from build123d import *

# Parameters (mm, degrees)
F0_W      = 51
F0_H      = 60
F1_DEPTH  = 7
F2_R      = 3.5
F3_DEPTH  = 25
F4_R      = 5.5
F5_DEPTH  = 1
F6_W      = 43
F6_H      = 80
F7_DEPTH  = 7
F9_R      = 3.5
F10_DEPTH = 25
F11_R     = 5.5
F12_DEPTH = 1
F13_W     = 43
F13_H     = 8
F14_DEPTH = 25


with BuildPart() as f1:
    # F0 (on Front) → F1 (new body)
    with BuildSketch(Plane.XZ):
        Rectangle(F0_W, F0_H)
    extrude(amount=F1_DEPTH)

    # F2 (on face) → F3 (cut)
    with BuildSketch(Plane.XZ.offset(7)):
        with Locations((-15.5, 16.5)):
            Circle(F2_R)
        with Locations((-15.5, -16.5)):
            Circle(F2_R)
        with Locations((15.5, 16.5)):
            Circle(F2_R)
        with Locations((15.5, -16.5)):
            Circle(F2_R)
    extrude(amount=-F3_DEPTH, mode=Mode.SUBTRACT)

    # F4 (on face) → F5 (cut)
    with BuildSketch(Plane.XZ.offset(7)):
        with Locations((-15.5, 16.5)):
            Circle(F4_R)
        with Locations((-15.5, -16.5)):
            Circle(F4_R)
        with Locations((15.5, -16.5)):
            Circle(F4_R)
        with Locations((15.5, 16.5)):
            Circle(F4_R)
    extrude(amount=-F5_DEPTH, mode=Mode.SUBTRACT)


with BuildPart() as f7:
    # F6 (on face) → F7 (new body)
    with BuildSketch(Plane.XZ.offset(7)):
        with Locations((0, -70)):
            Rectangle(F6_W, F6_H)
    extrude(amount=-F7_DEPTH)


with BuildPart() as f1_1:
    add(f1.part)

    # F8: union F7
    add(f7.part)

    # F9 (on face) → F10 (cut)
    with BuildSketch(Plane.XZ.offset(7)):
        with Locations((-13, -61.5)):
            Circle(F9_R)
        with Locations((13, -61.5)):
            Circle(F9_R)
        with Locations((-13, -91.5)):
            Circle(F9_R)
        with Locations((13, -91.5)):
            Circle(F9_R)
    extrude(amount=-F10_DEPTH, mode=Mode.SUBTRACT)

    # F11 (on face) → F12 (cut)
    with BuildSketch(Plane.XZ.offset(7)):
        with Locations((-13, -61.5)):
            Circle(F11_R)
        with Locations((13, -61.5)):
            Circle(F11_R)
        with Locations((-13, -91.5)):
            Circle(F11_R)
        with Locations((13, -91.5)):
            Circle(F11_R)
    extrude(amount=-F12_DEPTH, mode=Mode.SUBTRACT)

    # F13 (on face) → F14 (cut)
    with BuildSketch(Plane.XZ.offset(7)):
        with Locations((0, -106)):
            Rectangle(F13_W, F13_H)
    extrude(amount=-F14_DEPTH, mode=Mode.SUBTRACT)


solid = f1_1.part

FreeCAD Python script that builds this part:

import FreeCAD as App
import Part
import Sketcher
from FreeCAD import Vector
Q = App.Units.Quantity


def add_polygon(sketch, points):
    """Adds a closed chain of lines whose ends are joined by coincident constraints."""
    first, n = sketch.GeometryCount, len(points)
    for a, b in zip(points, points[1:] + points[:1]):
        sketch.addGeometry(Part.LineSegment(App.Vector(*a, 0), App.Vector(*b, 0)), False)
    for i in range(n):
        sketch.addConstraint(Sketcher.Constraint("Coincident", first + i, 2, first + (i + 1) % n, 1))

doc = App.newDocument("Part")
body = doc.addObject("PartDesign::Body", "Body")

# Sketch on XZ plane
sketch1 = body.newObject("Sketcher::SketchObject", "Sketch")
sketch1.AttachmentSupport = (doc.getObject("XZ_Plane"), [""])
sketch1.MapMode = "FlatFace"
add_polygon(sketch1, [(-26, 30), (-26, -30), (26, -30), (26, 30)])  # lines 0-3
sketch1.addConstraint([
    Sketcher.Constraint("Vertical", 0),
    Sketcher.Constraint("Horizontal", 1),
    Sketcher.Constraint("Vertical", 2),
    Sketcher.Constraint("Horizontal", 3),
    Sketcher.Constraint("Symmetric", 0, 2, 2, 2, -1, 1),
    Sketcher.Constraint("DistanceX", 1, 1, 1, 2, Q("51 mm")),
    Sketcher.Constraint("DistanceY", 0, 2, 0, 1, Q("60 mm")),
])
pad1 = body.newObject("PartDesign::Pad", "Pad")
pad1.Profile = sketch1
pad1.Length = 7

# Sketch on XZ plane
sketch2 = body.newObject("Sketcher::SketchObject", "Sketch001")
sketch2.AttachmentSupport = (doc.getObject("XZ_Plane"), [""])
sketch2.MapMode = "FlatFace"
sketch2.AttachmentOffset = App.Placement(Vector(0, 0, 7), App.Rotation())
sketch2.addGeometry([
    Part.Circle(Vector(-15.5, 16.5, 0), Vector(0, 0, 1), 3.5),
    Part.Circle(Vector(-15.5, -16.5, 0), Vector(0, 0, 1), 3.5),
    Part.Circle(Vector(15.5, 16.5, 0), Vector(0, 0, 1), 3.5),
    Part.Circle(Vector(15.5, -16.5, 0), Vector(0, 0, 1), 3.5),
], False)
sketch2.addConstraint([
    Sketcher.Constraint("Equal", 0, 1),
    Sketcher.Constraint("Equal", 1, 2),
    Sketcher.Constraint("Equal", 2, 3),
    Sketcher.Constraint("Symmetric", 1, 3, 2, 3, -1, 1),
    Sketcher.Constraint("Symmetric", 0, 3, 3, 3, -1, 1),
    Sketcher.Constraint("Symmetric", 0, 3, 2, 3, -2),
    Sketcher.Constraint("Diameter", 0, Q("7 mm")),
    Sketcher.Constraint("DistanceY", 1, 3, 0, 3, Q("33 mm")),
    Sketcher.Constraint("DistanceX", 0, 3, 2, 3, Q("31 mm")),
])
pocket1 = body.newObject("PartDesign::Pocket", "Pocket")
pocket1.Profile = sketch2
pocket1.Length = 25

# Sketch on XZ plane
sketch3 = body.newObject("Sketcher::SketchObject", "Sketch002")
sketch3.AttachmentSupport = (doc.getObject("XZ_Plane"), [""])
sketch3.MapMode = "FlatFace"
sketch3.AttachmentOffset = App.Placement(Vector(0, 0, 7), App.Rotation())
sketch3.addGeometry([
    Part.Circle(Vector(-16, 16, 0), Vector(0, 0, 1), 6),
    Part.Circle(Vector(-16, -16, 0), Vector(0, 0, 1), 6),
    Part.Circle(Vector(16, -16, 0), Vector(0, 0, 1), 6),
    Part.Circle(Vector(16, 16, 0), Vector(0, 0, 1), 6),
], False)
sketch3.addConstraint([
    Sketcher.Constraint("Equal", 0, 1),
    Sketcher.Constraint("Equal", 1, 2),
    Sketcher.Constraint("Equal", 2, 3),
    Sketcher.Constraint("Symmetric", 0, 3, 2, 3, -1, 1),
    Sketcher.Constraint("Symmetric", 1, 3, 3, 3, -1, 1),
    Sketcher.Constraint("Symmetric", 1, 3, 2, 3, -2),
    Sketcher.Constraint("Diameter", 0, Q("11 mm")),
    Sketcher.Constraint("DistanceY", 1, 3, 0, 3, Q("33 mm")),
    Sketcher.Constraint("DistanceX", 1, 3, 2, 3, Q("31 mm")),
])
pocket2 = body.newObject("PartDesign::Pocket", "Pocket001")
pocket2.Profile = sketch3
pocket2.Length = 1
body2 = doc.addObject("PartDesign::Body", "Body001")

# Sketch on XZ plane
sketch4 = body2.newObject("Sketcher::SketchObject", "Sketch003")
sketch4.AttachmentSupport = (doc.getObject("XZ_Plane001"), [""])
sketch4.MapMode = "FlatFace"
sketch4.AttachmentOffset = App.Placement(Vector(0, 0, 7), App.Rotation())
add_polygon(sketch4, [(-22, -30), (-22, -110), (22, -110), (22, -30)])  # lines 0-3
sketch4.addConstraint([
    Sketcher.Constraint("Vertical", 0),
    Sketcher.Constraint("Horizontal", 1),
    Sketcher.Constraint("Vertical", 2),
    Sketcher.Constraint("Horizontal", 3),
    Sketcher.Constraint("DistanceX", 1, 1, 1, 2, Q("43 mm")),
    Sketcher.Constraint("DistanceY", 0, 2, 0, 1, Q("80 mm")),
    Sketcher.Constraint("DistanceY", 0, 2, -1, 1, Q("110 mm")),
    Sketcher.Constraint("DistanceX", 0, 2, -1, 1, Q("21.5 mm")),
])
pad2 = body2.newObject("PartDesign::Pad", "Pad001")
pad2.Profile = sketch4
pad2.Length = 7
pad2.Reversed = True
doc.recompute()

boolean = body.newObject("PartDesign::Boolean", "Boolean")
boolean.Type = "Fuse"
boolean.addObjects([body2])

# Sketch on XZ plane
sketch5 = body.newObject("Sketcher::SketchObject", "Sketch004")
sketch5.AttachmentSupport = (doc.getObject("XZ_Plane"), [""])
sketch5.MapMode = "FlatFace"
sketch5.AttachmentOffset = App.Placement(Vector(0, 0, 7), App.Rotation())
sketch5.addGeometry([
    Part.Circle(Vector(-13, -61.5, 0), Vector(0, 0, 1), 3.5),
    Part.Circle(Vector(13, -61.5, 0), Vector(0, 0, 1), 3.5),
    Part.Circle(Vector(-13, -91.5, 0), Vector(0, 0, 1), 3.5),
    Part.Circle(Vector(13, -91.5, 0), Vector(0, 0, 1), 3.5),
], False)
sketch5.addConstraint([
    Sketcher.Constraint("Equal", 0, 1),
    Sketcher.Constraint("Equal", 1, 2),
    Sketcher.Constraint("Equal", 2, 3),
    Sketcher.Constraint("Symmetric", 0, 3, 1, 3, -2),
    Sketcher.Constraint("Symmetric", 2, 3, 3, 3, -2),
    Sketcher.Constraint("Vertical", 0, 3, 2, 3),
    Sketcher.Constraint("Diameter", 0, Q("7 mm")),
    Sketcher.Constraint("DistanceX", 0, 3, -1, 1, Q("13 mm")),
    Sketcher.Constraint("DistanceY", 2, 3, 0, 3, Q("30 mm")),
    Sketcher.Constraint("DistanceY", 0, 3, -1, 1, Q("61.5 mm")),
])
pocket3 = body.newObject("PartDesign::Pocket", "Pocket002")
pocket3.Profile = sketch5
pocket3.Length = 25

# Sketch on XZ plane
sketch6 = body.newObject("Sketcher::SketchObject", "Sketch005")
sketch6.AttachmentSupport = (doc.getObject("XZ_Plane"), [""])
sketch6.MapMode = "FlatFace"
sketch6.AttachmentOffset = App.Placement(Vector(0, 0, 7), App.Rotation())
sketch6.addGeometry([
    Part.Circle(Vector(-13, -62, 0), Vector(0, 0, 1), 6),
    Part.Circle(Vector(13, -62, 0), Vector(0, 0, 1), 6),
    Part.Circle(Vector(-13, -92, 0), Vector(0, 0, 1), 6),
    Part.Circle(Vector(13, -92, 0), Vector(0, 0, 1), 6),
], False)
sketch6.addConstraint([
    Sketcher.Constraint("Equal", 0, 1),
    Sketcher.Constraint("Equal", 1, 2),
    Sketcher.Constraint("Equal", 2, 3),
    Sketcher.Constraint("Symmetric", 0, 3, 1, 3, -2),
    Sketcher.Constraint("Symmetric", 2, 3, 3, 3, -2),
    Sketcher.Constraint("Vertical", 0, 3, 2, 3),
    Sketcher.Constraint("Diameter", 0, Q("11 mm")),
    Sketcher.Constraint("DistanceX", 0, 3, -1, 1, Q("13 mm")),
    Sketcher.Constraint("DistanceY", 2, 3, 0, 3, Q("30 mm")),
    Sketcher.Constraint("DistanceY", 0, 3, -1, 1, Q("61.5 mm")),
])
pocket4 = body.newObject("PartDesign::Pocket", "Pocket003")
pocket4.Profile = sketch6
pocket4.Length = 1

# Sketch on XZ plane
sketch7 = body.newObject("Sketcher::SketchObject", "Sketch006")
sketch7.AttachmentSupport = (doc.getObject("XZ_Plane"), [""])
sketch7.MapMode = "FlatFace"
sketch7.AttachmentOffset = App.Placement(Vector(0, 0, 7), App.Rotation())
add_polygon(sketch7, [(-22, -102), (-22, -110), (22, -110), (22, -102)])  # lines 0-3
sketch7.addConstraint([
    Sketcher.Constraint("Vertical", 0),
    Sketcher.Constraint("Horizontal", 1),
    Sketcher.Constraint("Vertical", 2),
    Sketcher.Constraint("Horizontal", 3),
    Sketcher.Constraint("DistanceX", 1, 1, 1, 2, Q("43 mm")),
    Sketcher.Constraint("DistanceY", 0, 2, 0, 1, Q("8 mm")),
    Sketcher.Constraint("DistanceY", 0, 2, -1, 1, Q("110 mm")),
    Sketcher.Constraint("DistanceX", 0, 2, -1, 1, Q("21.5 mm")),
])
pocket5 = body.newObject("PartDesign::Pocket", "Pocket004")
pocket5.Profile = sketch7
pocket5.Length = 25

doc.recompute()
